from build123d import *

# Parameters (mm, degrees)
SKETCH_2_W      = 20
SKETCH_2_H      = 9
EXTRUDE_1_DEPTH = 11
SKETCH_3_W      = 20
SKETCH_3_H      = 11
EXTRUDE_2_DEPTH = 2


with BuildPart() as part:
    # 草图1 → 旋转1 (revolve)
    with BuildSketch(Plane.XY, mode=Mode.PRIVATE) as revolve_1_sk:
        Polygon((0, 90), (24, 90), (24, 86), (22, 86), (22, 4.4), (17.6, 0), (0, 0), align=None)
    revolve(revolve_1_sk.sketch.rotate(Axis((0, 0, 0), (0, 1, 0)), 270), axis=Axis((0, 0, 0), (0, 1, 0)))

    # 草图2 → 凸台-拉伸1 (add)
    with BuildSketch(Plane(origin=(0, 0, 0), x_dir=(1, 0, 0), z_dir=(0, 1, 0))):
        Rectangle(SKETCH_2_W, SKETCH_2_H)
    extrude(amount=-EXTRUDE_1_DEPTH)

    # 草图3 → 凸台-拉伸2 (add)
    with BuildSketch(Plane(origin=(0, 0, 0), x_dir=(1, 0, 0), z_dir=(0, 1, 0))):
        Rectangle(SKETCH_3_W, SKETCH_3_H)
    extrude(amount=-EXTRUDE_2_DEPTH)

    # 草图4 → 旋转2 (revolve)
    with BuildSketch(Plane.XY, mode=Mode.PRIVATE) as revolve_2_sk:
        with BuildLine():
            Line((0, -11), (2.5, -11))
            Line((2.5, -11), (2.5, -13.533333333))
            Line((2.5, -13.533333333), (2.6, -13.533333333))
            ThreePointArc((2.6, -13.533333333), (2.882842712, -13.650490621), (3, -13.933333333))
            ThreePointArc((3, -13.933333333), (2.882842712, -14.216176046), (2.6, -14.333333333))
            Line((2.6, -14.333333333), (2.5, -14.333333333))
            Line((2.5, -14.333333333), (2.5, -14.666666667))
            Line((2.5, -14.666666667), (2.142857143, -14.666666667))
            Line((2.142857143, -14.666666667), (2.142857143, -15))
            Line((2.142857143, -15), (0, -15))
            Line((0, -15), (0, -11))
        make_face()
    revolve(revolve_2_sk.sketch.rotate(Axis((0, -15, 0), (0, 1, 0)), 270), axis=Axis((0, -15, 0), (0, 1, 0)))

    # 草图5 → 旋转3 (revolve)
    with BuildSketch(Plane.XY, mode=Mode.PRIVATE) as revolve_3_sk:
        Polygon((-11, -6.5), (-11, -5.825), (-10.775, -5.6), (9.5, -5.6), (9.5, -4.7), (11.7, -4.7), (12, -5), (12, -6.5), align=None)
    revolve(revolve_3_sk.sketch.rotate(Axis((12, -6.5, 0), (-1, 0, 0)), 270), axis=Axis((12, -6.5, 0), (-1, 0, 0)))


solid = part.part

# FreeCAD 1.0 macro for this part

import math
import FreeCAD as App
import Part
import Sketcher
Q = App.Units.Quantity


def add_polygon(sketch, points):
    """Adds a closed chain of lines whose ends are joined by coincident constraints."""
    first, n = sketch.GeometryCount, len(points)
    for a, b in zip(points, points[1:] + points[:1]):
        sketch.addGeometry(Part.LineSegment(App.Vector(*a, 0), App.Vector(*b, 0)), False)
    for i in range(n):
        sketch.addConstraint(Sketcher.Constraint("Coincident", first + i, 2, first + (i + 1) % n, 1))

doc = App.newDocument("Part")
body = doc.addObject("PartDesign::Body", "Body")

sketch1 = body.newObject("Sketcher::SketchObject", "Sketch")
sketch1.AttachmentSupport = (doc.getObject("XY_Plane"), [""])
sketch1.MapMode = "FlatFace"
add_polygon(sketch1, [(24, 90), (0, 90), (0, 0), (17.6, 0), (22, 4.4), (22, 86), (24, 86)])
sketch1.addConstraint(Sketcher.Constraint("Horizontal", 0))
sketch1.addConstraint(Sketcher.Constraint("Vertical", 1))
sketch1.addConstraint(Sketcher.Constraint("Horizontal", 2))
sketch1.addConstraint(Sketcher.Constraint("Vertical", 4))
sketch1.addConstraint(Sketcher.Constraint("Horizontal", 5))
sketch1.addConstraint(Sketcher.Constraint("Vertical", 6))
sketch1.addConstraint(Sketcher.Constraint("Coincident", 1, 2, -1, 1))
sketch1.addConstraint(Sketcher.Constraint("DistanceX", 0, 2, 0, 1, 24.0))
sketch1.addConstraint(Sketcher.Constraint("DistanceX", 5, 1, 5, 2, 2.0))
sketch1.addConstraint(Sketcher.Constraint("DistanceY", 1, 2, 1, 1, 90.0))
sketch1.addConstraint(Sketcher.Constraint("DistanceY", 6, 1, 6, 2, 4.0))
sketch1.addConstraint(Sketcher.Constraint("Angle", 3, Q("45 deg")))
sketch1.addConstraint(Sketcher.Constraint("DistanceX", 2, 1, 2, 2, 17.6))
revolution = body.newObject("PartDesign::Revolution", "Revolution")
revolution.Profile = sketch1
revolution.ReferenceAxis = (sketch1, ["V_Axis"])
revolution.Angle = 360

sketch2 = body.newObject("Sketcher::SketchObject", "Sketch001")
sketch2.AttachmentSupport = (doc.getObject("XZ_Plane"), [""])
sketch2.MapMode = "FlatFace"
add_polygon(sketch2, [(-10, -4), (-10, 4), (10, 4), (10, -4)])
sketch2.addConstraint(Sketcher.Constraint("Vertical", 0))
sketch2.addConstraint(Sketcher.Constraint("Horizontal", 1))
sketch2.addConstraint(Sketcher.Constraint("Vertical", 2))
sketch2.addConstraint(Sketcher.Constraint("Horizontal", 3))
sketch2.addConstraint(Sketcher.Constraint("Symmetric", 0, 2, 2, 2, -1, 1))
sketch2.addConstraint(Sketcher.Constraint("DistanceX", 1, 1, 1, 2, 20.0))
sketch2.addConstraint(Sketcher.Constraint("DistanceY", 0, 1, 0, 2, 9.0))
pad1 = body.newObject("PartDesign::Pad", "Pad")
pad1.Profile = sketch2
pad1.Length = 11

sketch3 = body.newObject("Sketcher::SketchObject", "Sketch002")
sketch3.AttachmentSupport = (doc.getObject("XZ_Plane"), [""])
sketch3.MapMode = "FlatFace"
add_polygon(sketch3, [(-10, -6), (-10, 6), (10, 6), (10, -6)])
sketch3.addConstraint(Sketcher.Constraint("Vertical", 0))
sketch3.addConstraint(Sketcher.Constraint("Horizontal", 1))
sketch3.addConstraint(Sketcher.Constraint("Vertical", 2))
sketch3.addConstraint(Sketcher.Constraint("Horizontal", 3))
sketch3.addConstraint(Sketcher.Constraint("Symmetric", 0, 2, 2, 2, -1, 1))
sketch3.addConstraint(Sketcher.Constraint("DistanceX", 1, 1, 1, 2, 20.0))
sketch3.addConstraint(Sketcher.Constraint("DistanceY", 0, 1, 0, 2, 11.0))
pad2 = body.newObject("PartDesign::Pad", "Pad001")
pad2.Profile = sketch3
pad2.Length = 2

sketch4 = body.newObject("Sketcher::SketchObject", "Sketch003")
sketch4.AttachmentSupport = (doc.getObject("XY_Plane"), [""])
sketch4.MapMode = "FlatFace"
sketch4.addGeometry(Part.LineSegment(App.Vector(2.5, -11, 0), App.Vector(0, -11, 0)), False)
sketch4.addGeometry(Part.LineSegment(App.Vector(0, -11, 0), App.Vector(0, -15, 0)), False)
sketch4.addGeometry(Part.LineSegment(App.Vector(0, -15, 0), App.Vector(2.14, -15, 0)), False)
sketch4.addGeometry(Part.LineSegment(App.Vector(2.14, -15, 0), App.Vector(2.14, -14.67, 0)), False)
sketch4.addGeometry(Part.LineSegment(App.Vector(2.14, -14.67, 0), App.Vector(2.5, -14.67, 0)), False)
sketch4.addGeometry(Part.LineSegment(App.Vector(2.5, -14.67, 0), App.Vector(2.5, -14.33, 0)), False)
sketch4.addGeometry(Part.LineSegment(App.Vector(2.5, -14.33, 0), App.Vector(2.6, -14.33, 0)), False)
sketch4.addGeometry(Part.ArcOfCircle(Part.Circle(App.Vector(2.6, -13.93, 0), App.Vector(0, 0, 1), 0.4), math.radians(-90), math.radians(0)), False)
sketch4.addGeometry(Part.ArcOfCircle(Part.Circle(App.Vector(2.6, -13.93, 0), App.Vector(0, 0, 1), 0.4), math.radians(0), math.radians(90)), False)
sketch4.addGeometry(Part.LineSegment(App.Vector(2.6, -13.53, 0), App.Vector(2.5, -13.53, 0)), False)
sketch4.addGeometry(Part.LineSegment(App.Vector(2.5, -13.53, 0), App.Vector(2.5, -11, 0)), False)
sketch4.addConstraint(Sketcher.Constraint("Coincident", 0, 2, 1, 1))
sketch4.addConstraint(Sketcher.Constraint("Coincident", 1, 2, 2, 1))
sketch4.addConstraint(Sketcher.Constraint("Coincident", 2, 2, 3, 1))
sketch4.addConstraint(Sketcher.Constraint("Coincident", 3, 2, 4, 1))
sketch4.addConstraint(Sketcher.Constraint("Coincident", 4, 2, 5, 1))
sketch4.addConstraint(Sketcher.Constraint("Coincident", 5, 2, 6, 1))
sketch4.addConstraint(Sketcher.Constraint("Tangent", 6, 2, 7, 1))
sketch4.addConstraint(Sketcher.Constraint("Tangent", 7, 2, 8, 1))
sketch4.addConstraint(Sketcher.Constraint("Tangent", 8, 2, 9, 1))
sketch4.addConstraint(Sketcher.Constraint("Coincident", 9, 2, 10, 1))
sketch4.addConstraint(Sketcher.Constraint("Coincident", 10, 2, 0, 1))
sketch4.addConstraint(Sketcher.Constraint("Horizontal", 0))
sketch4.addConstraint(Sketcher.Constraint("Vertical", 1))
sketch4.addConstraint(Sketcher.Constraint("Horizontal", 2))
sketch4.addConstraint(Sketcher.Constraint("Vertical", 3))
sketch4.addConstraint(Sketcher.Constraint("Horizontal", 4))
sketch4.addConstraint(Sketcher.Constraint("Vertical", 5))
sketch4.addConstraint(Sketcher.Constraint("Horizontal", 6))
sketch4.addConstraint(Sketcher.Constraint("Horizontal", 9))
sketch4.addConstraint(Sketcher.Constraint("Vertical", 10))
sketch4.addConstraint(Sketcher.Constraint("Equal", 7, 8))
sketch4.addConstraint(Sketcher.Constraint("PointOnObject", 0, 2, -2))
sketch4.addConstraint(Sketcher.Constraint("Horizontal", 8, 3, 7, 2))
sketch4.addConstraint(Sketcher.Constraint("Vertical", 5, 2, 9, 2))
sketch4.addConstraint(Sketcher.Constraint("Equal", 3, 5))
sketch4.addConstraint(Sketcher.Constraint("Radius", 7, 0.4))
sketch4.addConstraint(Sketcher.Constraint("DistanceY", 1, 2, 1, 1, 4.0))
sketch4.addConstraint(Sketcher.Constraint("DistanceX", 0, 2, 0, 1, 2.5))
sketch4.addConstraint(Sketcher.Constraint("DistanceX", 6, 1, 6, 2, 0.1))
sketch4.addConstraint(Sketcher.Constraint("DistanceY", 0, 2, -1, 1, 11.0))
sketch4.addConstraint(Sketcher.Constraint("DistanceX", 2, 1, 2, 2, 2.142857))
sketch4.addConstraint(Sketcher.Constraint("DistanceY", 3, 1, 3, 2, 0.333333))
revolution2 = body.newObject("PartDesign::Revolution", "Revolution001")
revolution2.Profile = sketch4
revolution2.ReferenceAxis = (sketch4, ["V_Axis"])
revolution2.Angle = 360

sketch5 = body.newObject("Sketcher::SketchObject", "Sketch004")
sketch5.AttachmentSupport = (doc.getObject("XY_Plane"), [""])
sketch5.MapMode = "FlatFace"
add_polygon(sketch5, [(-11, -5.83), (-11, -6.5), (12, -6.5), (12, -5), (11.7, -4.7), (9.5, -4.7), (9.5, -5.6), (-10.78, -5.6)])
sketch5.addGeometry(Part.LineSegment(App.Vector(12, -6.5, 0), App.Vector(-11, -6.5, 0)), True)
sketch5.addConstraint(Sketcher.Constraint("Vertical", 0))
sketch5.addConstraint(Sketcher.Constraint("Horizontal", 1))
sketch5.addConstraint(Sketcher.Constraint("Vertical", 2))
sketch5.addConstraint(Sketcher.Constraint("Horizontal", 4))
sketch5.addConstraint(Sketcher.Constraint("Vertical", 5))
sketch5.addConstraint(Sketcher.Constraint("Horizontal", 6))
sketch5.addConstraint(Sketcher.Constraint("Horizontal", 8))
sketch5.addConstraint(Sketcher.Constraint("Coincident", 8, 1, 1, 2))
sketch5.addConstraint(Sketcher.Constraint("Perpendicular", 3, 7))
sketch5.addConstraint(Sketcher.Constraint("Vertical", 7, 2, 8, 2))
sketch5.addConstraint(Sketcher.Constraint("DistanceX", 1, 1, 1, 2, 23.0))
sketch5.addConstraint(Sketcher.Constraint("Angle", 3, Q("135 deg")))
sketch5.addConstraint(Sketcher.Constraint("DistanceX", 4, 2, 4, 1, 2.2))
sketch5.addConstraint(Sketcher.Constraint("DistanceY", 2, 1, 2, 2, 1.5))
sketch5.addConstraint(Sketcher.Constraint("DistanceY", 5, 2, 5, 1, 0.9))
sketch5.addConstraint(Sketcher.Constraint("DistanceX", 0, 2, -1, 1, 11.0))
sketch5.addConstraint(Sketcher.Constraint("DistanceY", 2, 2, -1, 1, 5.0))
sketch5.addConstraint(Sketcher.Constraint("DistanceX", -1, 1, 3, 2, 11.7))
sketch5.addConstraint(Sketcher.Constraint("DistanceX", 6, 2, 6, 1, 20.275))
revolution3 = body.newObject("PartDesign::Revolution", "Revolution002")
revolution3.Profile = sketch5
revolution3.ReferenceAxis = (sketch5, ["Axis0"])
revolution3.Angle = 360

doc.recompute()
